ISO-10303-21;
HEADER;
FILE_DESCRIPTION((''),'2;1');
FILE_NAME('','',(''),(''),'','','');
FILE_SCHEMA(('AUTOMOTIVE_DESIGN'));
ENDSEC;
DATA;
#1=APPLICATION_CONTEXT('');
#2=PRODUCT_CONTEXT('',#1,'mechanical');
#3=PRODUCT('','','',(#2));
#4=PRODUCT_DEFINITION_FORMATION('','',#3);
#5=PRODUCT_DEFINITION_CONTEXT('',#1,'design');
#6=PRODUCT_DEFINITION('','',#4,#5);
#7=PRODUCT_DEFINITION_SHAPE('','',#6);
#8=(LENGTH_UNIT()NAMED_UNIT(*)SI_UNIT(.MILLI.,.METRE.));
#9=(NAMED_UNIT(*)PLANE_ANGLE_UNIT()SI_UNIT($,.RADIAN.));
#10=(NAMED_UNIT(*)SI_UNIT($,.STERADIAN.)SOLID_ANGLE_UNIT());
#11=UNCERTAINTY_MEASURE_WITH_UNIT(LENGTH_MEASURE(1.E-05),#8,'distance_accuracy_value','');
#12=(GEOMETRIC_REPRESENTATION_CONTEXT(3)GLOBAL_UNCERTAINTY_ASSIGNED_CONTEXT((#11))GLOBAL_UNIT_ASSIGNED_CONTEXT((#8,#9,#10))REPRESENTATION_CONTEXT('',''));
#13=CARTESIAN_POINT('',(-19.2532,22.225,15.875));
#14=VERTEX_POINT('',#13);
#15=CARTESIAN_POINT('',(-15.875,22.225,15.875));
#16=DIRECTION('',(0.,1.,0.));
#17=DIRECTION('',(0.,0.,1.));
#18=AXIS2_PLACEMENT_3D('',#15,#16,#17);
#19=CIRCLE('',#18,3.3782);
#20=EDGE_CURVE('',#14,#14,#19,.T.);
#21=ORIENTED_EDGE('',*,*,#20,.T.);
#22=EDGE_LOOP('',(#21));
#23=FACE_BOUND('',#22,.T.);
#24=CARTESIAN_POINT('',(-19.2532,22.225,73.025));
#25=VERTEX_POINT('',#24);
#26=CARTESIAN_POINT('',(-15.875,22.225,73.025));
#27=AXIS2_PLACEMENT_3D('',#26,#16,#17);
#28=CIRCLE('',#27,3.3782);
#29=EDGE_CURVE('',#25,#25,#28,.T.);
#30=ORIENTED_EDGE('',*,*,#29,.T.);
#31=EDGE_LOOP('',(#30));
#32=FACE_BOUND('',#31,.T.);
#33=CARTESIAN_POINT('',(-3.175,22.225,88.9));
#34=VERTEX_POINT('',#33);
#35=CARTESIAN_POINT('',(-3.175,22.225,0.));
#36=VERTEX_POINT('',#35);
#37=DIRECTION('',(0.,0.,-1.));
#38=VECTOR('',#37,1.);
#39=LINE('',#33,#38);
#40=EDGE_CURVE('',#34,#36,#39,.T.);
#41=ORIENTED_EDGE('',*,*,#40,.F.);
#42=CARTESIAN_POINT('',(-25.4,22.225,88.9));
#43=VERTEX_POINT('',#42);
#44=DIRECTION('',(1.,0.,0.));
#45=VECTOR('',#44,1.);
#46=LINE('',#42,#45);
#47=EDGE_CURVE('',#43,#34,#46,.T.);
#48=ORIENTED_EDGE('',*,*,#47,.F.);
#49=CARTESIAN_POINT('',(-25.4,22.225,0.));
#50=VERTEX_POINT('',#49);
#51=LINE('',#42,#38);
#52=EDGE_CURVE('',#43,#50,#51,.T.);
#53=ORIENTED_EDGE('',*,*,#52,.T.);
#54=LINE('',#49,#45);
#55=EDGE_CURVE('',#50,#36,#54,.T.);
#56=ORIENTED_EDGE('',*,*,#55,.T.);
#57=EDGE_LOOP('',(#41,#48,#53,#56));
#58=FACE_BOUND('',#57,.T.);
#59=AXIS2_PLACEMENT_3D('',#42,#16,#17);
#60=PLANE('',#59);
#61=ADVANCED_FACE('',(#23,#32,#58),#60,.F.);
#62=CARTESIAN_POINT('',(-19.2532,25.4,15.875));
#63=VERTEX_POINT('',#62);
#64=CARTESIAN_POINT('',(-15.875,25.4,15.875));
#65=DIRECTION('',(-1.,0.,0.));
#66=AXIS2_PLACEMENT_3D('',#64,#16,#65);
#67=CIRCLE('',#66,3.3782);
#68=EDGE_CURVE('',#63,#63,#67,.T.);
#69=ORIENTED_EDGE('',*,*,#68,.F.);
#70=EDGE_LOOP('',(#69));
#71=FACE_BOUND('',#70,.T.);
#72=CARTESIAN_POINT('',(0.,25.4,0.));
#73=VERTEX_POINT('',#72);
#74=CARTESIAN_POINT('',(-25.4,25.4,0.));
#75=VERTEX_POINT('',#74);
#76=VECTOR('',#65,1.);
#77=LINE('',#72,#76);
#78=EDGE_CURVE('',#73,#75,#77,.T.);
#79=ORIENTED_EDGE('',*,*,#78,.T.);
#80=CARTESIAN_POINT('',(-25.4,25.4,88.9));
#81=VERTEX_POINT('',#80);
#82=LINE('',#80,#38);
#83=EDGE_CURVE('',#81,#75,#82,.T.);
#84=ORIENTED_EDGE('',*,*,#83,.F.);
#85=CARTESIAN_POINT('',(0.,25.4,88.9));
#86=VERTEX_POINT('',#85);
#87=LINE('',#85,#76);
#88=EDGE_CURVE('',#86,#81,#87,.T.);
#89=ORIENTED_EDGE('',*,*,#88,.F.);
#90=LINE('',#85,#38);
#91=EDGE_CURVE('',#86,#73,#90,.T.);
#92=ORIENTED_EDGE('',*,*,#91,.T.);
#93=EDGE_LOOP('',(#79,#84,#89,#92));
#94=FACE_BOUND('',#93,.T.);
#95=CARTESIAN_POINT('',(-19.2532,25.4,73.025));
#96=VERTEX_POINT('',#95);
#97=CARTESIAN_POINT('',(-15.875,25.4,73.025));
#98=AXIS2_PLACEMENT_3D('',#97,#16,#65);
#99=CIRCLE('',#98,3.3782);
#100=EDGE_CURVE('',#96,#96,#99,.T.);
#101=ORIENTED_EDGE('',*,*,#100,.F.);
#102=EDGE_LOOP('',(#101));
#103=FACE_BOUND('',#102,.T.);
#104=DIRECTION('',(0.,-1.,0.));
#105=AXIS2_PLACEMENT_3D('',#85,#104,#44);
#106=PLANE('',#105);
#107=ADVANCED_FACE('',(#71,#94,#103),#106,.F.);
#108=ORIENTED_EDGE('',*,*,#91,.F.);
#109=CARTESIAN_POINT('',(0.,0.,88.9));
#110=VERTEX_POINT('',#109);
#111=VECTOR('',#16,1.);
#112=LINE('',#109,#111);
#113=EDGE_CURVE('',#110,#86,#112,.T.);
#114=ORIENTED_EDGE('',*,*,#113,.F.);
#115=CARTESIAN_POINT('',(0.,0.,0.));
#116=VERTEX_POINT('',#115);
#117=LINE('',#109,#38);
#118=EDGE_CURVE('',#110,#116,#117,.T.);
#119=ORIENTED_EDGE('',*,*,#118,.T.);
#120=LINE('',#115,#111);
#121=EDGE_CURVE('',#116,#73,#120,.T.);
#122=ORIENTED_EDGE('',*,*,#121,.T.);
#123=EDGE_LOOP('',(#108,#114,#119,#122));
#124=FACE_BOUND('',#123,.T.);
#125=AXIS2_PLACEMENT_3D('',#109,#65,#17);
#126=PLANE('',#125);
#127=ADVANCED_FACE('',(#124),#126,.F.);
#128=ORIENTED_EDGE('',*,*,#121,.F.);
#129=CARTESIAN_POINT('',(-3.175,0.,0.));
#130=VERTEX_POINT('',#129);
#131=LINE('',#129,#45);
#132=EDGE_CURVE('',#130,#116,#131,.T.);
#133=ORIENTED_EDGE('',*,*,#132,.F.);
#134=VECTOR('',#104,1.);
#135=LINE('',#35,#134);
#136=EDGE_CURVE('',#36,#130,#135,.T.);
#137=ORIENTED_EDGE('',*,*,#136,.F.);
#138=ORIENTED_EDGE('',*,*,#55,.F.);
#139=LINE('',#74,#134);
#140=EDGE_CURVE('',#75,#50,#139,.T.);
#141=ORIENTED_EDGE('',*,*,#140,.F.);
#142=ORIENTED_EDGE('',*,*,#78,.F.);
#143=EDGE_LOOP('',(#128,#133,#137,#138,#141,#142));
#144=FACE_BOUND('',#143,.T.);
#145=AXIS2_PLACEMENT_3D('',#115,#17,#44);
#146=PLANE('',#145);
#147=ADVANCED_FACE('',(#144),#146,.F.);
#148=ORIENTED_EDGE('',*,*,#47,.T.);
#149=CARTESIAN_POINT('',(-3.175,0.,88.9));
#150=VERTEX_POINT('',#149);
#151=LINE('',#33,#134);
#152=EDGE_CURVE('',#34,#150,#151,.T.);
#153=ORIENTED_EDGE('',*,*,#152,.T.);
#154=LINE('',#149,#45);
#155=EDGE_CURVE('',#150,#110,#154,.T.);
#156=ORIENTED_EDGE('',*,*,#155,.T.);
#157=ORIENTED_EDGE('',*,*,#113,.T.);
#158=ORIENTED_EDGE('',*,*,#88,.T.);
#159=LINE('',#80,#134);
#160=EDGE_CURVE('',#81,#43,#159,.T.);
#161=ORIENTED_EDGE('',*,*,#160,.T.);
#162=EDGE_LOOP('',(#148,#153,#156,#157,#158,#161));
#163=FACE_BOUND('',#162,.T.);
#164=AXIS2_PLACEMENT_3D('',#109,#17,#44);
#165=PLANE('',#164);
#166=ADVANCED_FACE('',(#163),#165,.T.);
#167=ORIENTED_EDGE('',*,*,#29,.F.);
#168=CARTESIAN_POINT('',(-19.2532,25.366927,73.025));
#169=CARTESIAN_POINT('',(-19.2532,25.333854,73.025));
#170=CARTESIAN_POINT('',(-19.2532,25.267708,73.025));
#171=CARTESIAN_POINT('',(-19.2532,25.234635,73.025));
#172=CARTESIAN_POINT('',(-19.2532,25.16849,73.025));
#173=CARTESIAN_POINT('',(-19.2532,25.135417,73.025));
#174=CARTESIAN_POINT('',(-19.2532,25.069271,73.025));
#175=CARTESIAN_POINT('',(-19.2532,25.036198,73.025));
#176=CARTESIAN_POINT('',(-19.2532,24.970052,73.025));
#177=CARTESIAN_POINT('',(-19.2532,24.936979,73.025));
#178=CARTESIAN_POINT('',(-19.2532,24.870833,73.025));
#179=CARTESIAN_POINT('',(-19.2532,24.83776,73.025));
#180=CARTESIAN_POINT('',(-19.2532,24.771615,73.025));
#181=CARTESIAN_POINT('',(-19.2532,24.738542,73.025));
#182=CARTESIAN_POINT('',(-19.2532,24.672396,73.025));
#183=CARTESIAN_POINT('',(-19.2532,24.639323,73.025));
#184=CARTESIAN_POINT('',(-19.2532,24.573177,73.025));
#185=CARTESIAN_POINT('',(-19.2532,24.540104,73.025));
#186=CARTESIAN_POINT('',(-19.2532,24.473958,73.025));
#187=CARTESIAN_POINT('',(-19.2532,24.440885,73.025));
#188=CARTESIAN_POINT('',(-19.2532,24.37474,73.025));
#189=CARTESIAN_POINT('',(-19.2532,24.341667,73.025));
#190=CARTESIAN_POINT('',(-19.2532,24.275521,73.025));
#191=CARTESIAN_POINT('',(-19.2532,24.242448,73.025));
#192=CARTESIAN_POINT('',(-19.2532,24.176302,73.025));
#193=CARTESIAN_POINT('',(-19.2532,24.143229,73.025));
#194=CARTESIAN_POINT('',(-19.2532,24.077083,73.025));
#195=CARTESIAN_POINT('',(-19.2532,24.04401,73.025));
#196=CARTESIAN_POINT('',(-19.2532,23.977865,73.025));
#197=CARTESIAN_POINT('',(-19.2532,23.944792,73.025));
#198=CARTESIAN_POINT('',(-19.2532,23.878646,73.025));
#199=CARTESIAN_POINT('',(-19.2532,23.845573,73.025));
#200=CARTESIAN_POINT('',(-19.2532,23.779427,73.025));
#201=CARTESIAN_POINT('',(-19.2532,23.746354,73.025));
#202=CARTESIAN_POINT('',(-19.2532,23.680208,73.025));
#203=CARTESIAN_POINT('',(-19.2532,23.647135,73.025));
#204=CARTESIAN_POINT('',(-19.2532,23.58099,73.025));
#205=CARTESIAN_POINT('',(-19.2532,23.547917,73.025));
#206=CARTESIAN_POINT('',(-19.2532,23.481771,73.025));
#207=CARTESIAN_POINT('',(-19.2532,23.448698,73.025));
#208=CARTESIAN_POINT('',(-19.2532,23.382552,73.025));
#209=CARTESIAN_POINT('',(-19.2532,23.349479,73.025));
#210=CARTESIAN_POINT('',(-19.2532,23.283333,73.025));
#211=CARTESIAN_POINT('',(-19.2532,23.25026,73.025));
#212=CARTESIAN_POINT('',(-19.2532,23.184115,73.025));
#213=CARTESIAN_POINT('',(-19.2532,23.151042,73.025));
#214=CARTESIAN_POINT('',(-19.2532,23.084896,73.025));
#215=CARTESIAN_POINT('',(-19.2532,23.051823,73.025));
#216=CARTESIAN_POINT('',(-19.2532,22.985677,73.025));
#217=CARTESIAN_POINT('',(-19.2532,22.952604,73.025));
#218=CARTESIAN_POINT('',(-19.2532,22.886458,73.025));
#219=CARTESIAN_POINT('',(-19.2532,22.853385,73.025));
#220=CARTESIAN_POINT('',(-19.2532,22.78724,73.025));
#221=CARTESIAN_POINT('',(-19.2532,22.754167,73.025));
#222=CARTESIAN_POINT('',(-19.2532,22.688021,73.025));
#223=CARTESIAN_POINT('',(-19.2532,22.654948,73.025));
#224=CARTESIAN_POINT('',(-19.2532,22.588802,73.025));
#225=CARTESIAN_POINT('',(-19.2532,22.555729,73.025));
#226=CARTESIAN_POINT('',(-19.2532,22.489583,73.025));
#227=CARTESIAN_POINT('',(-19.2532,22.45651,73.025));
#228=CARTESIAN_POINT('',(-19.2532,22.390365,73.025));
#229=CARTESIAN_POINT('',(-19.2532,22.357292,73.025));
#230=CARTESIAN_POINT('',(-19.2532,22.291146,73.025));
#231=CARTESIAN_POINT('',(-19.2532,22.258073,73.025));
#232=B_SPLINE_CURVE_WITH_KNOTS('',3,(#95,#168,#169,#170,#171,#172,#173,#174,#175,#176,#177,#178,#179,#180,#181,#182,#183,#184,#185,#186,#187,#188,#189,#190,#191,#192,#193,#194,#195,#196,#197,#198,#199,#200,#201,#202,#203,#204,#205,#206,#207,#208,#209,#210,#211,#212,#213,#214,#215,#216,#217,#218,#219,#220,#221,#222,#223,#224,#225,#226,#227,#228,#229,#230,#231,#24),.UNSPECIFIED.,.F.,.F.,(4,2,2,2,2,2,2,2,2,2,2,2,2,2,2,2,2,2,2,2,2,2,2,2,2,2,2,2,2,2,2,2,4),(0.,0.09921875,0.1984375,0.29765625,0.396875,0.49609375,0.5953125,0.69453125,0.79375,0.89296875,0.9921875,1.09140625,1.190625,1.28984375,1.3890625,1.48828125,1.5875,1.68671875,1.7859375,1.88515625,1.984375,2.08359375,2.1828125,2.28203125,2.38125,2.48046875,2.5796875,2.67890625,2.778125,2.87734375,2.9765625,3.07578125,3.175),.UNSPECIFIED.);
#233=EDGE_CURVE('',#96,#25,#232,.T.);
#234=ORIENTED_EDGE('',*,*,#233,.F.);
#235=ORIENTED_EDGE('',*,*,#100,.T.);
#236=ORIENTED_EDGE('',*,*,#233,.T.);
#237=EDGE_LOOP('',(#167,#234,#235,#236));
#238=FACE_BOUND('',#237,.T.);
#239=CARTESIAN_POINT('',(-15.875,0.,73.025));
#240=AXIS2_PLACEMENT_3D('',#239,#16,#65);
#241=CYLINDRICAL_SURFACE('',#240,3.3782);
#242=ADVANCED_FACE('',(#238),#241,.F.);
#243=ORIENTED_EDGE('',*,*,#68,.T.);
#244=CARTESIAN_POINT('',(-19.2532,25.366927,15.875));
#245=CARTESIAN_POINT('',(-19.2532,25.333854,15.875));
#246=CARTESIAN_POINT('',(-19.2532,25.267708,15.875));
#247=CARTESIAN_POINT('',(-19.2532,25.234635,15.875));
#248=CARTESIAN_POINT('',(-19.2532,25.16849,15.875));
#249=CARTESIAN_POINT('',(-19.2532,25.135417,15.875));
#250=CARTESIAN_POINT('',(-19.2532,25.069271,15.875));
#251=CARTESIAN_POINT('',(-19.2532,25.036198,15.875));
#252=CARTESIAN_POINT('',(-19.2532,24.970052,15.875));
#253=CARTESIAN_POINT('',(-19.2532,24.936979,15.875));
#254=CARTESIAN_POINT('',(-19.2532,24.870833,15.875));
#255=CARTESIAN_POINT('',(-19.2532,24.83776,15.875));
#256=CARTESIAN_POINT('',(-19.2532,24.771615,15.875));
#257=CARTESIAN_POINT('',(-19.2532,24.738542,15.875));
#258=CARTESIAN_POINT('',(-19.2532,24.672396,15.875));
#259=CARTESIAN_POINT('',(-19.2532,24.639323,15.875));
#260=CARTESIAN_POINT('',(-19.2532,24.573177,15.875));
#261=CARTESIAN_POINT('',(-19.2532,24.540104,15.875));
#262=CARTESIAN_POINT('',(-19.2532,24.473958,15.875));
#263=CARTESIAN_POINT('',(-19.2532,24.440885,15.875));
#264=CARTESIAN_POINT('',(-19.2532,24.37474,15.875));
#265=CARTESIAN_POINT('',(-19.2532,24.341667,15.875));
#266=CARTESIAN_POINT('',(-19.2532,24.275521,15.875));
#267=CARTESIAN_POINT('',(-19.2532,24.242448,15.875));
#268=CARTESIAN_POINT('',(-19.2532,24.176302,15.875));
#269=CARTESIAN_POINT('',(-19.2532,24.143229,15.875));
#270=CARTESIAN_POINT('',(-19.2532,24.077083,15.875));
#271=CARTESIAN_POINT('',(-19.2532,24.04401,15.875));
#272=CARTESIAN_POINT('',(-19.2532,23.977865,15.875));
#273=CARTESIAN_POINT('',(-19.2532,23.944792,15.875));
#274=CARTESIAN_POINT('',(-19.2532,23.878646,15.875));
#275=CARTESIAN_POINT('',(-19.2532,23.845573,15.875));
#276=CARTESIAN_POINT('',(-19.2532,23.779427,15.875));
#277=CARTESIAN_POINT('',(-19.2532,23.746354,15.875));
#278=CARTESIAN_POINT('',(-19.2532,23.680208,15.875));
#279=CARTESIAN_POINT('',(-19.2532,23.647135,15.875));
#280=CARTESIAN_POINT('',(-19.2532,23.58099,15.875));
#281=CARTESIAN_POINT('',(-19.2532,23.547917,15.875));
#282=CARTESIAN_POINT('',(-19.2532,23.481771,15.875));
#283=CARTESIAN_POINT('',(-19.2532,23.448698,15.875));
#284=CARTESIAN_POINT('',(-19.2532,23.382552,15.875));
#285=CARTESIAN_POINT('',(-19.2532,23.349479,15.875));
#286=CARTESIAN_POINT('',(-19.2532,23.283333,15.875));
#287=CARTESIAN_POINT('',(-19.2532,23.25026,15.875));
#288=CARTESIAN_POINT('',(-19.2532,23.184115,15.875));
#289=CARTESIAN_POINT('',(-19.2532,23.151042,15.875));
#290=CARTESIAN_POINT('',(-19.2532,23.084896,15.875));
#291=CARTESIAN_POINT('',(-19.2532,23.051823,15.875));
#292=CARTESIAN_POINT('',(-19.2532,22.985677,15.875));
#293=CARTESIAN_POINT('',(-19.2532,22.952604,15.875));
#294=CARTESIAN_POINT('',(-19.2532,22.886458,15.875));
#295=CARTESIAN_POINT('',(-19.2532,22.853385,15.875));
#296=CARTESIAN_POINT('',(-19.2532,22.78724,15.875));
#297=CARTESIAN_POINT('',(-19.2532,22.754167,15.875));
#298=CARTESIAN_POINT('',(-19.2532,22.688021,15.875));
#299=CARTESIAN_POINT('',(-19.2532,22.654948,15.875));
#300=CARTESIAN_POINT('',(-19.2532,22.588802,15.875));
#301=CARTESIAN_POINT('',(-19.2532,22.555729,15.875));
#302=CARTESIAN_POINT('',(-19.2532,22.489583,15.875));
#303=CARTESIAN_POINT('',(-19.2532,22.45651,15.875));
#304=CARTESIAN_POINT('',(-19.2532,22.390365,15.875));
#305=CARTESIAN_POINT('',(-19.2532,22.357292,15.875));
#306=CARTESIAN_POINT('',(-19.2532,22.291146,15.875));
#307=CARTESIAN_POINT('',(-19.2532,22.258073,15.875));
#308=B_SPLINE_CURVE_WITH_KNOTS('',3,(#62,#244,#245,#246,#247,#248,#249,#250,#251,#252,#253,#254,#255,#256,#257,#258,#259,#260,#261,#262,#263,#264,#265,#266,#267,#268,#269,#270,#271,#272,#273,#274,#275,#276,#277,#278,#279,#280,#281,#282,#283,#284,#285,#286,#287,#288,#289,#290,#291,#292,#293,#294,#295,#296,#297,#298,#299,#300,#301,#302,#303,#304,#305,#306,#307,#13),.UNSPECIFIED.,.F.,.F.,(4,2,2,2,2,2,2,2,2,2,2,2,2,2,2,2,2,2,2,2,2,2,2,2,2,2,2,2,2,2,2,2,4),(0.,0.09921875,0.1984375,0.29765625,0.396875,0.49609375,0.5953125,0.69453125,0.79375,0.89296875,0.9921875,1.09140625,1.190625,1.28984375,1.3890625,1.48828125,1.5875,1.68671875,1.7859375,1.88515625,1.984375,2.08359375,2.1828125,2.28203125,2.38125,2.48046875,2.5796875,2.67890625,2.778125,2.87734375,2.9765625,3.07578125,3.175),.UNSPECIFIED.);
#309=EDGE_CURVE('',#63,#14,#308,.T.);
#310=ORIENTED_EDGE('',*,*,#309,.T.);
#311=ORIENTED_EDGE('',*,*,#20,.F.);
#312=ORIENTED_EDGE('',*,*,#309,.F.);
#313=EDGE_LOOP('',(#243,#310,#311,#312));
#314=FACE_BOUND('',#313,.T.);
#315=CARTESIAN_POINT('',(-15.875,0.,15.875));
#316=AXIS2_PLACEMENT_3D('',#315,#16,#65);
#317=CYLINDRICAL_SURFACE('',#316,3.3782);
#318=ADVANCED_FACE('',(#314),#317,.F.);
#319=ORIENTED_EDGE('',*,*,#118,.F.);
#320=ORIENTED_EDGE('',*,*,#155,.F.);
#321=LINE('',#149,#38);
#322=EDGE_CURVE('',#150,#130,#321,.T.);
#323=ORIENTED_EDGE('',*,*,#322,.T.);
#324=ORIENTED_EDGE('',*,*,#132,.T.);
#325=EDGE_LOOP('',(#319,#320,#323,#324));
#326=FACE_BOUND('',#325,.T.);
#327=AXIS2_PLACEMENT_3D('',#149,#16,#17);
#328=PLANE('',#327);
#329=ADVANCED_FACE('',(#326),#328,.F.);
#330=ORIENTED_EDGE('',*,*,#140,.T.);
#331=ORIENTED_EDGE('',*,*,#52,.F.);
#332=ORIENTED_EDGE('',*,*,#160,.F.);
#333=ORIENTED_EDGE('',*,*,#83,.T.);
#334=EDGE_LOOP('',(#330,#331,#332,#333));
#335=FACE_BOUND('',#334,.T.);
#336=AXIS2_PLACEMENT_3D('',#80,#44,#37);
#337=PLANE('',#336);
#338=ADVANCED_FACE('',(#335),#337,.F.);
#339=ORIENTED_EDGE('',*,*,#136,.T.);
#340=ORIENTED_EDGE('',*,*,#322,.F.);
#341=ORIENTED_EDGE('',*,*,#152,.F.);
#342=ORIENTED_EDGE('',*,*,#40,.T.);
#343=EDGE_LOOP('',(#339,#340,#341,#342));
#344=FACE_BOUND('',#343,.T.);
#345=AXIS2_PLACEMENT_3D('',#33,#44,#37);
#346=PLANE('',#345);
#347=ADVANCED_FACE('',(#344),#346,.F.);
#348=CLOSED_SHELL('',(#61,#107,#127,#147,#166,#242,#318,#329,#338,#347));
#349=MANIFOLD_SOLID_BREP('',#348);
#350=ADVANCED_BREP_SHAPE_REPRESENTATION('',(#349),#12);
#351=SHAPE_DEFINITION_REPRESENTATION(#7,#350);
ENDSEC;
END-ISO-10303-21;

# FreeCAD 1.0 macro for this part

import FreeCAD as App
import Part
import Sketcher

V = App.Vector
Q = App.Units.Quantity

doc = App.newDocument("Part")
body = doc.addObject("PartDesign::Body", "Body")

# Sketch on XY plane
sketch1 = doc.addObject("Sketcher::SketchObject", "Sketch")
body.addObject(sketch1)
sketch1.AttachmentSupport = (doc.XY_Plane, [""])
sketch1.MapMode = "FlatFace"
sketch1.addGeometry(Part.LineSegment(V(0, 0, 0), V(0, 25.4, 0)), False)
sketch1.addGeometry(Part.LineSegment(V(0, 25.4, 0), V(-25.4, 25.4, 0)), False)
sketch1.addGeometry(Part.LineSegment(V(-25.4, 25.4, 0), V(-25.4, 22.2, 0)), False)
sketch1.addGeometry(Part.LineSegment(V(-25.4, 22.2, 0), V(-3.2, 22.2, 0)), False)
sketch1.addGeometry(Part.LineSegment(V(-3.2, 22.2, 0), V(-3.2, 0, 0)), False)
sketch1.addGeometry(Part.LineSegment(V(-3.2, 0, 0), V(0, 0, 0)), False)
sketch1.addConstraint(Sketcher.Constraint("Coincident", 0, 2, 1, 1))
sketch1.addConstraint(Sketcher.Constraint("Coincident", 1, 2, 2, 1))
sketch1.addConstraint(Sketcher.Constraint("Coincident", 2, 2, 3, 1))
sketch1.addConstraint(Sketcher.Constraint("Coincident", 3, 2, 4, 1))
sketch1.addConstraint(Sketcher.Constraint("Coincident", 4, 2, 5, 1))
sketch1.addConstraint(Sketcher.Constraint("Coincident", 5, 2, 0, 1))
sketch1.addConstraint(Sketcher.Constraint("Vertical", 0))
sketch1.addConstraint(Sketcher.Constraint("Horizontal", 1))
sketch1.addConstraint(Sketcher.Constraint("Vertical", 2))
sketch1.addConstraint(Sketcher.Constraint("Horizontal", 3))
sketch1.addConstraint(Sketcher.Constraint("Vertical", 4))
sketch1.addConstraint(Sketcher.Constraint("Horizontal", 5))
sketch1.addConstraint(Sketcher.Constraint("Coincident", 5, 2, -1, 1))
sketch1.addConstraint(Sketcher.Constraint("Equal", 1, 0))
sketch1.addConstraint(Sketcher.Constraint("Equal", 5, 2))
sketch1.addConstraint(Sketcher.Constraint("DistanceX", 1, 2, 1, 1, Q("1 in")))
sketch1.addConstraint(Sketcher.Constraint("DistanceX", 3, 1, 3, 2, Q("0.875 in")))
pad1 = doc.addObject("PartDesign::Pad", "Pad")
body.addObject(pad1)
pad1.Profile = sketch1
pad1.Length = Q("3.5 in")

# Sketch on XZ plane
sketch2 = doc.addObject("Sketcher::SketchObject", "Sketch001")
body.addObject(sketch2)
sketch2.AttachmentSupport = (doc.XZ_Plane, [""])
sketch2.MapMode = "FlatFace"
sketch2.AttachmentOffset = App.Placement(V(0, 0, -1 * 25.4), App.Rotation())
sketch2.addGeometry(Part.Circle(V(-15.9, 15.9, 0), V(0, 0, 1), 3.4), False)
sketch2.addGeometry(Part.Circle(V(-15.9, 73, 0), V(0, 0, 1), 3.4), False)
sketch2.addConstraint(Sketcher.Constraint("Equal", 0, 1))
sketch2.addConstraint(Sketcher.Constraint("Vertical", 0, 3, 1, 3))
sketch2.addConstraint(Sketcher.Constraint("Diameter", 0, Q("0.266 in")))
sketch2.addConstraint(Sketcher.Constraint("DistanceY", 0, 3, 1, 3, Q("2.25 in")))
sketch2.addConstraint(Sketcher.Constraint("DistanceX", 0, 3, -1, 1, Q("0.625 in")))
sketch2.addConstraint(Sketcher.Constraint("DistanceY", -1, 1, 0, 3, Q("0.625 in")))
pocket1 = doc.addObject("PartDesign::Pocket", "Pocket")
body.addObject(pocket1)
pocket1.Profile = sketch2
pocket1.Type = "ThroughAll"
pocket1.Reversed = True

doc.recompute()
